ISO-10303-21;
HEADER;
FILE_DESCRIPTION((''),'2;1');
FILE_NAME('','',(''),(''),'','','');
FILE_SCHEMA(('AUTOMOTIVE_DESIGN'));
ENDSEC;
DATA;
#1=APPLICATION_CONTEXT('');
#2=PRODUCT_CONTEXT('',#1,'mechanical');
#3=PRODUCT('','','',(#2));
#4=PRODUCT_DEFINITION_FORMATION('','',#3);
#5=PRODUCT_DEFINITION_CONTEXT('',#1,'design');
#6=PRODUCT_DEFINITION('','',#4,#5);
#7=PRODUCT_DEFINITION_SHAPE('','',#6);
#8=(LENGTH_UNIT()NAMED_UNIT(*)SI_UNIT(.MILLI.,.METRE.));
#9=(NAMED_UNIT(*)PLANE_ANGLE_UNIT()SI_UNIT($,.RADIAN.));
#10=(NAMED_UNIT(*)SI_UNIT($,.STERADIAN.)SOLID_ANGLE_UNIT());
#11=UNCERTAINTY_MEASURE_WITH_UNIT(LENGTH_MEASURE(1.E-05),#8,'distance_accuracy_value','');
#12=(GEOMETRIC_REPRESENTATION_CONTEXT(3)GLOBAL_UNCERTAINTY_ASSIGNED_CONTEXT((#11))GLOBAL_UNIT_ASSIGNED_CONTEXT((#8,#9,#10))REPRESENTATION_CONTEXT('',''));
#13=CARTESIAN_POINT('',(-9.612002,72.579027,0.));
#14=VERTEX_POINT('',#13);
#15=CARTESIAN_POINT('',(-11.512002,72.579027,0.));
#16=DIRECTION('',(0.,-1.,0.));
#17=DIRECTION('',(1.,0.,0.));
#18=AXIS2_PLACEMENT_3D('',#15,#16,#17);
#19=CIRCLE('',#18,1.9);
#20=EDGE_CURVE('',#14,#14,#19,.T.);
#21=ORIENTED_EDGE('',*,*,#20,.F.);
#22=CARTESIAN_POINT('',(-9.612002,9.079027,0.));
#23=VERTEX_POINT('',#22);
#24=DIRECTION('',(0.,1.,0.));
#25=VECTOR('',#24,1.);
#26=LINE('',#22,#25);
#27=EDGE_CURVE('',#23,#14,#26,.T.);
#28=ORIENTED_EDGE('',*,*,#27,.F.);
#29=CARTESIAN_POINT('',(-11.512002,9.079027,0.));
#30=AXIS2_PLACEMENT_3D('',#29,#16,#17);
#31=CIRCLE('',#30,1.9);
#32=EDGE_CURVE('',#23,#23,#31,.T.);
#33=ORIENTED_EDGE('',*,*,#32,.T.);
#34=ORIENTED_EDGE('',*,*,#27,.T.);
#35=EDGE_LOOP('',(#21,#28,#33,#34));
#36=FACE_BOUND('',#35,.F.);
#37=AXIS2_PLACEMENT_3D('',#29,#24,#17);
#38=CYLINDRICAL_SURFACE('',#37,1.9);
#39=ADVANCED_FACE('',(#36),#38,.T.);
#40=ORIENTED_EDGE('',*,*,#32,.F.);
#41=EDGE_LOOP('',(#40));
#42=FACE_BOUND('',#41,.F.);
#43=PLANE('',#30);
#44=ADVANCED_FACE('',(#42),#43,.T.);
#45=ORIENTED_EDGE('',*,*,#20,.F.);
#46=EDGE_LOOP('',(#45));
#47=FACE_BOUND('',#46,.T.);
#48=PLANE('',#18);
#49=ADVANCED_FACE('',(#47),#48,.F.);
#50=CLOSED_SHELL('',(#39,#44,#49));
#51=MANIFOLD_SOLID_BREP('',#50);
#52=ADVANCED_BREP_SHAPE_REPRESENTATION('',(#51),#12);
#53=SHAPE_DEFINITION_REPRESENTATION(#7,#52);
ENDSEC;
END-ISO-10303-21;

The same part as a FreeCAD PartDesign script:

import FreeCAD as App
import Part
import Sketcher
from FreeCAD import Vector
Q = App.Units.Quantity

doc = App.newDocument("Part")
body = doc.addObject("PartDesign::Body", "Body")

sketch1 = body.newObject("Sketcher::SketchObject", "Sketch")
sketch1.AttachmentSupport = (doc.getObject("XY_Plane"), [""])
sketch1.MapMode = "FlatFace"
sketch1.addGeometry([
    Part.LineSegment(Vector(-11.5, 72.6, 0), Vector(-11.5, 9.1, 0)),
    Part.LineSegment(Vector(-11.5, 9.1, 0), Vector(-9.6, 9.1, 0)),
    Part.LineSegment(Vector(-9.6, 9.1, 0), Vector(-9.6, 72.6, 0)),
    Part.LineSegment(Vector(-9.6, 72.6, 0), Vector(-11.5, 72.6, 0)),
], False)
sketch1.addGeometry(Part.LineSegment(Vector(-11.5, 72.6, 0), Vector(-11.5, 9.1, 0)), True)
sketch1.addConstraint([
    Sketcher.Constraint("Coincident", 0, 2, 1, 1),
    Sketcher.Constraint("Coincident", 1, 2, 2, 1),
    Sketcher.Constraint("Coincident", 2, 2, 3, 1),
    Sketcher.Constraint("Coincident", 3, 2, 0, 1),
    Sketcher.Constraint("Vertical", 0),
    Sketcher.Constraint("Horizontal", 1),
    Sketcher.Constraint("Vertical", 2),
    Sketcher.Constraint("Horizontal", 3),
    Sketcher.Constraint("Vertical", 4),
    Sketcher.Constraint("Coincident", 4, 1, 3, 2),
    Sketcher.Constraint("Horizontal", 1, 2, 4, 2),
    Sketcher.Constraint("DistanceX", 1, 1, 1, 2, Q("1.9 mm")),
    Sketcher.Constraint("DistanceY", 0, 2, 0, 1, Q("63.5 mm")),
    Sketcher.Constraint("DistanceX", 0, 2, -1, 1, Q("11.512002 mm")),
    Sketcher.Constraint("DistanceY", -1, 1, 0, 2, Q("9.079027 mm")),
])
revolution = body.newObject("PartDesign::Revolution", "Revolution")
revolution.Profile = sketch1
revolution.ReferenceAxis = (sketch1, ["Axis0"])
revolution.Angle = 360

doc.recompute()
